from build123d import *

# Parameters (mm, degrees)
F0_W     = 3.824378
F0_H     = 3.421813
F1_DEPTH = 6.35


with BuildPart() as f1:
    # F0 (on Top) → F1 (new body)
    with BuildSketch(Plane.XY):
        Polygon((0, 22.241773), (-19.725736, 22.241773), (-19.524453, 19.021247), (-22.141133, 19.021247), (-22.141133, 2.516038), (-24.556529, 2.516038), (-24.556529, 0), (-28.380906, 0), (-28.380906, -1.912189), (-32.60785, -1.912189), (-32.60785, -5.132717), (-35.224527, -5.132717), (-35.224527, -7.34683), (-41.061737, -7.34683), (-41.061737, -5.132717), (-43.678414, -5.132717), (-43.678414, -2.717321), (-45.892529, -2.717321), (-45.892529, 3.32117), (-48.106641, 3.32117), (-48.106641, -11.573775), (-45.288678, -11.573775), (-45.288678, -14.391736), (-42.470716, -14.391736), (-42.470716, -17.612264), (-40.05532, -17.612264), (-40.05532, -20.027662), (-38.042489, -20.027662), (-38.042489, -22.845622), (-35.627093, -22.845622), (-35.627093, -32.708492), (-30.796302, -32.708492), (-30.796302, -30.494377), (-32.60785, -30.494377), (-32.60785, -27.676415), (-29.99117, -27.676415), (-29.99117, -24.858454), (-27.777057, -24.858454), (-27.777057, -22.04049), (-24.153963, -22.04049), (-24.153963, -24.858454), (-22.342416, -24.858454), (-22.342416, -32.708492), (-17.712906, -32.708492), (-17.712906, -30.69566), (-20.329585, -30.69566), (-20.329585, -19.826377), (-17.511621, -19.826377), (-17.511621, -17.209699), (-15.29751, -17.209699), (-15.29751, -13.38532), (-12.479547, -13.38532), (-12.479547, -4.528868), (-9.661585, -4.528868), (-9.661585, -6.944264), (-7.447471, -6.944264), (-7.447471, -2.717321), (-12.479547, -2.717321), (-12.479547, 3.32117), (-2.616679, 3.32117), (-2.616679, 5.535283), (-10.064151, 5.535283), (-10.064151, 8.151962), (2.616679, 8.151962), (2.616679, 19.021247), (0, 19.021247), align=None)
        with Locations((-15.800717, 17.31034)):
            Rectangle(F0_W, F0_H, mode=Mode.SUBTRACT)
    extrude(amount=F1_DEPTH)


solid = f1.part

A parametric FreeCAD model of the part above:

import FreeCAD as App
import Part
import Sketcher
from FreeCAD import Vector
Q = App.Units.Quantity


def add_polygon(sketch, points):
    """Adds a closed chain of lines whose ends are joined by coincident constraints."""
    first, n = sketch.GeometryCount, len(points)
    for a, b in zip(points, points[1:] + points[:1]):
        sketch.addGeometry(Part.LineSegment(App.Vector(*a, 0), App.Vector(*b, 0)), False)
    for i in range(n):
        sketch.addConstraint(Sketcher.Constraint("Coincident", first + i, 2, first + (i + 1) % n, 1))

doc = App.newDocument("Part")
params = doc.addObject("Spreadsheet::Sheet", "Params")
for row, (alias, value) in enumerate([
    ("pad1_length", "0.25 in"),
], start=1):
    params.set(f"A{row}", alias)
    params.set(f"B{row}", "=" + value)
    params.setAlias(f"B{row}", alias)

body = doc.addObject("PartDesign::Body", "Body")

sketch1 = body.newObject("Sketcher::SketchObject", "Sketch")
sketch1.AttachmentSupport = (doc.getObject("XY_Plane"), [""])
sketch1.MapMode = "FlatFace"
add_polygon(sketch1, [(0, 22.241773), (-19.725736, 22.241773), (-19.524453, 19.021247), (-22.141133, 19.021247), (-22.141133, 2.516038), (-24.556529, 2.516038), (-24.556529, 0), (-28.380906, 0), (-28.380906, -1.912189), (-32.60785, -1.912189), (-32.60785, -5.132717), (-35.224527, -5.132717), (-35.224527, -7.34683), (-41.061737, -7.34683), (-41.061737, -5.132717), (-43.678414, -5.132717), (-43.678414, -2.717321), (-45.892529, -2.717321), (-45.892529, 3.32117), (-48.106641, 3.32117), (-48.106641, -11.573775), (-45.288678, -11.573775), (-45.288678, -14.391736), (-42.470716, -14.391736), (-42.470716, -17.612264), (-40.05532, -17.612264), (-40.05532, -20.027662), (-38.042489, -20.027662), (-38.042489, -22.845622), (-35.627093, -22.845622), (-35.627093, -32.708492), (-30.796302, -32.708492), (-30.796302, -30.494377), (-32.60785, -30.494377), (-32.60785, -27.676415), (-29.99117, -27.676415), (-29.99117, -24.858454), (-27.777057, -24.858454), (-27.777057, -22.04049), (-24.153963, -22.04049), (-24.153963, -24.858454), (-22.342416, -24.858454), (-22.342416, -32.708492), (-17.712906, -32.708492), (-17.712906, -30.69566), (-20.329585, -30.69566), (-20.329585, -19.826377), (-17.511621, -19.826377), (-17.511621, -17.209699), (-15.29751, -17.209699), (-15.29751, -13.38532), (-12.479547, -13.38532), (-12.479547, -4.528868), (-9.661585, -4.528868), (-9.661585, -6.944264), (-7.447471, -6.944264), (-7.447471, -2.717321), (-12.479547, -2.717321), (-12.479547, 3.32117), (-2.616679, 3.32117), (-2.616679, 5.535283), (-10.064151, 5.535283), (-10.064151, 8.151962), (2.616679, 8.151962), (2.616679, 19.021247), (0, 19.021247)])
add_polygon(sketch1, [(-13.888528, 15.599433), (-17.712906, 15.599433), (-17.712906, 19.021247), (-13.888528, 19.021247)])
sketch1.addConstraint([
    Sketcher.Constraint("Horizontal", 0),
    Sketcher.Constraint("Horizontal", 2),
    Sketcher.Constraint("Vertical", 3),
    Sketcher.Constraint("Horizontal", 4),
    Sketcher.Constraint("Vertical", 5),
    Sketcher.Constraint("Horizontal", 6),
    Sketcher.Constraint("Vertical", 7),
    Sketcher.Constraint("Horizontal", 8),
    Sketcher.Constraint("Vertical", 9),
    Sketcher.Constraint("Horizontal", 10),
    Sketcher.Constraint("Vertical", 11),
    Sketcher.Constraint("Horizontal", 12),
    Sketcher.Constraint("Vertical", 13),
    Sketcher.Constraint("Horizontal", 14),
    Sketcher.Constraint("Vertical", 15),
    Sketcher.Constraint("Horizontal", 16),
    Sketcher.Constraint("Vertical", 17),
    Sketcher.Constraint("Horizontal", 18),
    Sketcher.Constraint("Vertical", 19),
    Sketcher.Constraint("Horizontal", 20),
    Sketcher.Constraint("Vertical", 21),
    Sketcher.Constraint("Horizontal", 22),
    Sketcher.Constraint("Vertical", 23),
    Sketcher.Constraint("Horizontal", 24),
    Sketcher.Constraint("Vertical", 25),
    Sketcher.Constraint("Horizontal", 26),
    Sketcher.Constraint("Vertical", 27),
    Sketcher.Constraint("Horizontal", 28),
    Sketcher.Constraint("Vertical", 29),
    Sketcher.Constraint("Horizontal", 30),
    Sketcher.Constraint("Vertical", 31),
    Sketcher.Constraint("Horizontal", 32),
    Sketcher.Constraint("Vertical", 33),
    Sketcher.Constraint("Horizontal", 34),
    Sketcher.Constraint("Vertical", 35),
    Sketcher.Constraint("Horizontal", 36),
    Sketcher.Constraint("Vertical", 37),
    Sketcher.Constraint("Horizontal", 38),
    Sketcher.Constraint("Vertical", 39),
    Sketcher.Constraint("Horizontal", 40),
    Sketcher.Constraint("Vertical", 41),
    Sketcher.Constraint("Horizontal", 42),
    Sketcher.Constraint("Vertical", 43),
    Sketcher.Constraint("Horizontal", 44),
    Sketcher.Constraint("Vertical", 45),
    Sketcher.Constraint("Horizontal", 46),
    Sketcher.Constraint("Vertical", 47),
    Sketcher.Constraint("Horizontal", 48),
    Sketcher.Constraint("Vertical", 49),
    Sketcher.Constraint("Horizontal", 50),
    Sketcher.Constraint("Vertical", 51),
    Sketcher.Constraint("Horizontal", 52),
    Sketcher.Constraint("Vertical", 53),
    Sketcher.Constraint("Horizontal", 54),
    Sketcher.Constraint("Vertical", 55),
    Sketcher.Constraint("Horizontal", 56),
    Sketcher.Constraint("Vertical", 57),
    Sketcher.Constraint("Horizontal", 58),
    Sketcher.Constraint("Vertical", 59),
    Sketcher.Constraint("Horizontal", 60),
    Sketcher.Constraint("Vertical", 61),
    Sketcher.Constraint("Horizontal", 62),
    Sketcher.Constraint("Vertical", 63),
    Sketcher.Constraint("Horizontal", 64),
    Sketcher.Constraint("Vertical", 65),
    Sketcher.Constraint("Horizontal", 66),
    Sketcher.Constraint("Vertical", 67),
    Sketcher.Constraint("Horizontal", 68),
    Sketcher.Constraint("Vertical", 69),
    Sketcher.Constraint("PointOnObject", 5, 2, -1),
    Sketcher.Constraint("PointOnObject", 64, 2, -2),
    Sketcher.Constraint("Horizontal", 10, 2, 13, 2),
    Sketcher.Constraint("Horizontal", 36, 2, 39, 2),
    Sketcher.Constraint("Horizontal", 30, 2, 41, 2),
    Sketcher.Constraint("Horizontal", 16, 2, 55, 2),
    Sketcher.Constraint("Horizontal", 18, 2, 57, 2),
    Sketcher.Constraint("Horizontal", 2, 2, 63, 2),
    Sketcher.Constraint("Horizontal", 64, 2, 67, 2),
    Sketcher.Constraint("Vertical", 9, 2, 32, 2),
    Sketcher.Constraint("Vertical", 51, 2, 56, 2),
    Sketcher.Constraint("Vertical", 43, 2, 66, 2),
    Sketcher.Constraint("Equal", 10, 14),
    Sketcher.Constraint("Equal", 20, 22),
    Sketcher.Constraint("Equal", 4, 24),
    Sketcher.Constraint("Equal", 24, 28),
    Sketcher.Constraint("Equal", 2, 34),
    Sketcher.Constraint("Equal", 18, 36),
    Sketcher.Constraint("Equal", 32, 40),
    Sketcher.Constraint("Equal", 34, 44),
    Sketcher.Constraint("Equal", 20, 46),
    Sketcher.Constraint("Equal", 18, 48),
    Sketcher.Constraint("Equal", 46, 50),
    Sketcher.Constraint("Equal", 50, 52),
    Sketcher.Constraint("Equal", 36, 54),
    Sketcher.Constraint("Equal", 44, 64),
    Sketcher.Constraint("Equal", 6, 66),
    Sketcher.Constraint("Equal", 54, 11),
    Sketcher.Constraint("Equal", 28, 15),
    Sketcher.Constraint("Equal", 52, 21),
    Sketcher.Constraint("Equal", 9, 23),
    Sketcher.Constraint("Equal", 15, 25),
    Sketcher.Constraint("Equal", 21, 27),
    Sketcher.Constraint("Equal", 54, 31),
    Sketcher.Constraint("Equal", 21, 33),
    Sketcher.Constraint("Equal", 33, 35),
    Sketcher.Constraint("Equal", 33, 37),
    Sketcher.Constraint("Equal", 26, 43),
    Sketcher.Constraint("Equal", 64, 47),
    Sketcher.Constraint("Equal", 68, 49),
    Sketcher.Constraint("Equal", 25, 53),
    Sketcher.Constraint("Equal", 8, 55),
    Sketcher.Constraint("Equal", 31, 59),
    Sketcher.Constraint("Equal", 47, 61),
    Sketcher.Constraint("DistanceX", 2, 2, 2, 1, Q("2.61668 mm")),
    Sketcher.Constraint("DistanceX", 12, 2, 12, 1, Q("5.83721 mm")),
    Sketcher.Constraint("DistanceX", 22, 1, 22, 2, Q("2.817962 mm")),
    Sketcher.Constraint("DistanceX", 26, 1, 26, 2, Q("2.012831 mm")),
    Sketcher.Constraint("DistanceX", 30, 1, 30, 2, Q("4.830791 mm")),
    Sketcher.Constraint("DistanceX", 42, 1, 42, 2, Q("4.62951 mm")),
    Sketcher.Constraint("DistanceX", 48, 1, 48, 2, Q("2.214111 mm")),
    Sketcher.Constraint("DistanceX", 58, 1, 58, 2, Q("9.862868 mm")),
    Sketcher.Constraint("DistanceX", 62, 1, 62, 2, Q("12.68083 mm")),
    Sketcher.Constraint("DistanceY", 3, 2, 3, 1, Q("16.505209 mm")),
    Sketcher.Constraint("DistanceY", 5, 2, 5, 1, Q("2.516038 mm")),
    Sketcher.Constraint("DistanceY", 7, 2, 7, 1, Q("1.912189 mm")),
    Sketcher.Constraint("DistanceY", 9, 2, 9, 1, Q("3.220528 mm")),
    Sketcher.Constraint("DistanceY", 17, 1, 17, 2, Q("6.038491 mm")),
    Sketcher.Constraint("DistanceY", 29, 2, 29, 1, Q("9.86287 mm")),
    Sketcher.Constraint("DistanceY", 49, 1, 49, 2, Q("3.824379 mm")),
    Sketcher.Constraint("DistanceY", 47, 2, -1, 1, Q("17.209699 mm")),
    Sketcher.Constraint("Distance", 1, Q("3.22681 mm")),
    Sketcher.Constraint("DistanceX", 0, 2, 0, 1, Q("19.725736 mm")),
    Sketcher.Constraint("DistanceX", 4, 2, 4, 1, Q("2.415396 mm")),
    Sketcher.Constraint("DistanceX", 8, 2, 8, 1, Q("4.226944 mm")),
    Sketcher.Constraint("DistanceX", 10, 2, 10, 1, Q("2.616677 mm")),
    Sketcher.Constraint("DistanceX", 16, 2, 16, 1, Q("2.214115 mm")),
    Sketcher.Constraint("DistanceX", 38, 1, 38, 2, Q("3.623094 mm")),
    Sketcher.Constraint("DistanceX", 60, 2, 60, 1, Q("7.447472 mm")),
    Sketcher.Constraint("DistanceY", 19, 2, 19, 1, Q("14.894945 mm")),
    Sketcher.Constraint("DistanceY", 67, 1, 67, 2, Q("3.421813 mm")),
])
pad1 = body.newObject("PartDesign::Pad", "Pad")
pad1.Profile = sketch1
pad1.setExpression("Length", "Params.pad1_length")

doc.recompute()
